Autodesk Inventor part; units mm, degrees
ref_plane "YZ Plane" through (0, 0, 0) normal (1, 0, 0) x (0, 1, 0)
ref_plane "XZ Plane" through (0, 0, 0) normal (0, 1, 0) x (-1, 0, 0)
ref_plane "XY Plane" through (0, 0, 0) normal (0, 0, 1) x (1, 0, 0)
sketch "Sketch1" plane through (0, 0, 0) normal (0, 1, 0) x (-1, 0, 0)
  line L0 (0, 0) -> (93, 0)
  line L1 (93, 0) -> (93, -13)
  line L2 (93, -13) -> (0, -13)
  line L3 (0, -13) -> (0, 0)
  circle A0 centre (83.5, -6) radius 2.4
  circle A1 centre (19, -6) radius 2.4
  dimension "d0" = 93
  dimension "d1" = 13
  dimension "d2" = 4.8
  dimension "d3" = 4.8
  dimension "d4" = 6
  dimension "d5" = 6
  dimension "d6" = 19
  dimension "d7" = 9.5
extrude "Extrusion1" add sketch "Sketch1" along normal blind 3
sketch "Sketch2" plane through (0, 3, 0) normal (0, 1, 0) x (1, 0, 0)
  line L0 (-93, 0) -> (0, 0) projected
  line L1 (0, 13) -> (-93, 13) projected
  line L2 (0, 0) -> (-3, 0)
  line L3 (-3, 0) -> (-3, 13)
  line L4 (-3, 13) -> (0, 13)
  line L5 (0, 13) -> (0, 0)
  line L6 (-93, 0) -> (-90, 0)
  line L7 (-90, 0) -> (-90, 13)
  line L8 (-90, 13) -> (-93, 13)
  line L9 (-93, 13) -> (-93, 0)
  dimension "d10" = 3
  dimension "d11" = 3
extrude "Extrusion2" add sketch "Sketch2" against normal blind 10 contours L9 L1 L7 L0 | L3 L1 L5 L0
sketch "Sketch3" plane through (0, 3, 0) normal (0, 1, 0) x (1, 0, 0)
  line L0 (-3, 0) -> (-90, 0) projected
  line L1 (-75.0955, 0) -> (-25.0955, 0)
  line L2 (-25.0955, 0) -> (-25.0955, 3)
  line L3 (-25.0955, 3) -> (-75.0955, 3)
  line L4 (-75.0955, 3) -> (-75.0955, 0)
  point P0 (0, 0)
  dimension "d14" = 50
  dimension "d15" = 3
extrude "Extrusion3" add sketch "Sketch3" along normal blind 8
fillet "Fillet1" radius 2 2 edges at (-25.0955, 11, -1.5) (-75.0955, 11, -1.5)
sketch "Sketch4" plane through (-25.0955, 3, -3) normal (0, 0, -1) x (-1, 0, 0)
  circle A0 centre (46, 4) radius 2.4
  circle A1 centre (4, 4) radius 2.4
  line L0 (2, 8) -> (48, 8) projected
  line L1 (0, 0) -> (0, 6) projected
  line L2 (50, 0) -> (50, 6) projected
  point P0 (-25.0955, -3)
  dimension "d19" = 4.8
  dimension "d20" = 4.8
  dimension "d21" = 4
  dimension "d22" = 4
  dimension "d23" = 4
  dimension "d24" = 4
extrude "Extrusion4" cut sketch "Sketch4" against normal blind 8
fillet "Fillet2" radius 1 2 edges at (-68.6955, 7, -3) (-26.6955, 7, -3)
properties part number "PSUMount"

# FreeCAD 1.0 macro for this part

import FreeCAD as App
import Part
import Sketcher


def edges_at(feature, points):
    """Names of the edges that pass closest to the given points."""
    edges = feature.Shape.Edges
    near = lambda p: min(range(len(edges)), key=lambda i: edges[i].distToShape(Part.Vertex(*p))[0])
    return sorted({f"Edge{near(p) + 1}" for p in points})

doc = App.newDocument("Part")
body = doc.addObject("PartDesign::Body", "Body")

sketch1 = doc.addObject("Sketcher::SketchObject", "Sketch")
body.addObject(sketch1)
sketch1.AttachmentSupport = (doc.XZ_Plane, [""])
sketch1.MapMode = "FlatFace"
sketch1.addGeometry(Part.LineSegment(App.Vector(-93, 0, 0), App.Vector(0, 0, 0)), False)
sketch1.addGeometry(Part.LineSegment(App.Vector(0, 0, 0), App.Vector(0, -13, 0)), False)
sketch1.addGeometry(Part.LineSegment(App.Vector(0, -13, 0), App.Vector(-93, -13, 0)), False)
sketch1.addGeometry(Part.LineSegment(App.Vector(-93, -13, 0), App.Vector(-93, 0, 0)), False)
sketch1.addGeometry(Part.Circle(App.Vector(-19, -6, 0), App.Vector(0, 0, 1), 2.4), False)
sketch1.addGeometry(Part.Circle(App.Vector(-83.5, -6, 0), App.Vector(0, 0, 1), 2.4), False)
sketch1.addConstraint(Sketcher.Constraint("Coincident", 0, 2, 1, 1))
sketch1.addConstraint(Sketcher.Constraint("Coincident", 1, 2, 2, 1))
sketch1.addConstraint(Sketcher.Constraint("Coincident", 2, 2, 3, 1))
sketch1.addConstraint(Sketcher.Constraint("Coincident", 3, 2, 0, 1))
sketch1.addConstraint(Sketcher.Constraint("Horizontal", 0))
sketch1.addConstraint(Sketcher.Constraint("Vertical", 1))
sketch1.addConstraint(Sketcher.Constraint("Horizontal", 2))
sketch1.addConstraint(Sketcher.Constraint("Vertical", 3))
sketch1.addConstraint(Sketcher.Constraint("Coincident", 0, 2, -1, 1))
sketch1.addConstraint(Sketcher.Constraint("Equal", 4, 5))
sketch1.addConstraint(Sketcher.Constraint("Horizontal", 4, 3, 5, 3))
sketch1.addConstraint(Sketcher.Constraint("Diameter", 4, 4.8))
sketch1.addConstraint(Sketcher.Constraint("DistanceX", 0, 1, 0, 2, 93.0))
sketch1.addConstraint(Sketcher.Constraint("DistanceY", 1, 2, 1, 1, 13.0))
sketch1.addConstraint(Sketcher.Constraint("DistanceX", 4, 3, -1, 1, 19.0))
sketch1.addConstraint(Sketcher.Constraint("DistanceY", 4, 3, -1, 1, 6.0))
sketch1.addConstraint(Sketcher.Constraint("DistanceX", 2, 2, 5, 3, 9.5))
pad1 = doc.addObject("PartDesign::Pad", "Pad")
body.addObject(pad1)
pad1.Profile = sketch1
pad1.Length = 3
pad1.Reversed = True

sketch2 = doc.addObject("Sketcher::SketchObject", "Sketch001")
body.addObject(sketch2)
sketch2.AttachmentSupport = (doc.XZ_Plane, [""])
sketch2.MapMode = "FlatFace"
sketch2.AttachmentOffset = App.Placement(App.Vector(0, 0, -3), App.Rotation())
sketch2.addGeometry(Part.LineSegment(App.Vector(-93, -13, 0), App.Vector(-93, 0, 0)), False)
sketch2.addGeometry(Part.LineSegment(App.Vector(-93, 0, 0), App.Vector(-90, 0, 0)), False)
sketch2.addGeometry(Part.LineSegment(App.Vector(-90, 0, 0), App.Vector(-90, -13, 0)), False)
sketch2.addGeometry(Part.LineSegment(App.Vector(-90, -13, 0), App.Vector(-93, -13, 0)), False)
sketch2.addGeometry(Part.LineSegment(App.Vector(-3, -13, 0), App.Vector(-3, 0, 0)), False)
sketch2.addGeometry(Part.LineSegment(App.Vector(-3, 0, 0), App.Vector(0, 0, 0)), False)
sketch2.addGeometry(Part.LineSegment(App.Vector(0, 0, 0), App.Vector(0, -13, 0)), False)
sketch2.addGeometry(Part.LineSegment(App.Vector(0, -13, 0), App.Vector(-3, -13, 0)), False)
sketch2.addConstraint(Sketcher.Constraint("Coincident", 0, 2, 1, 1))
sketch2.addConstraint(Sketcher.Constraint("Coincident", 1, 2, 2, 1))
sketch2.addConstraint(Sketcher.Constraint("Coincident", 2, 2, 3, 1))
sketch2.addConstraint(Sketcher.Constraint("Coincident", 3, 2, 0, 1))
sketch2.addConstraint(Sketcher.Constraint("Coincident", 4, 2, 5, 1))
sketch2.addConstraint(Sketcher.Constraint("Coincident", 5, 2, 6, 1))
sketch2.addConstraint(Sketcher.Constraint("Coincident", 6, 2, 7, 1))
sketch2.addConstraint(Sketcher.Constraint("Coincident", 7, 2, 4, 1))
sketch2.addConstraint(Sketcher.Constraint("Vertical", 0))
sketch2.addConstraint(Sketcher.Constraint("Horizontal", 1))
sketch2.addConstraint(Sketcher.Constraint("Vertical", 2))
sketch2.addConstraint(Sketcher.Constraint("Horizontal", 3))
sketch2.addConstraint(Sketcher.Constraint("Vertical", 4))
sketch2.addConstraint(Sketcher.Constraint("Horizontal", 5))
sketch2.addConstraint(Sketcher.Constraint("Vertical", 6))
sketch2.addConstraint(Sketcher.Constraint("Horizontal", 7))
sketch2.addConstraint(Sketcher.Constraint("Coincident", 5, 2, -1, 1))
sketch2.addConstraint(Sketcher.Constraint("PointOnObject", 0, 2, -1))
sketch2.addConstraint(Sketcher.Constraint("Horizontal", 3, 2, 6, 2))
sketch2.addConstraint(Sketcher.Constraint("Equal", 3, 5))
sketch2.addConstraint(Sketcher.Constraint("DistanceX", 1, 1, 1, 2, 3.0))
sketch2.addConstraint(Sketcher.Constraint("DistanceY", 0, 1, 0, 2, 13.0))
sketch2.addConstraint(Sketcher.Constraint("DistanceX", 0, 2, -1, 1, 93.0))
pad2 = doc.addObject("PartDesign::Pad", "Pad001")
body.addObject(pad2)
pad2.Profile = sketch2
pad2.Length = 10

sketch3 = doc.addObject("Sketcher::SketchObject", "Sketch002")
body.addObject(sketch3)
sketch3.AttachmentSupport = (doc.XZ_Plane, [""])
sketch3.MapMode = "FlatFace"
sketch3.AttachmentOffset = App.Placement(App.Vector(0, 0, -3), App.Rotation())
sketch3.addGeometry(Part.LineSegment(App.Vector(-75.1, 0, 0), App.Vector(-25.1, 0, 0)), False)
sketch3.addGeometry(Part.LineSegment(App.Vector(-25.1, 0, 0), App.Vector(-25.1, -3, 0)), False)
sketch3.addGeometry(Part.LineSegment(App.Vector(-25.1, -3, 0), App.Vector(-75.1, -3, 0)), False)
sketch3.addGeometry(Part.LineSegment(App.Vector(-75.1, -3, 0), App.Vector(-75.1, 0, 0)), False)
sketch3.addConstraint(Sketcher.Constraint("Coincident", 0, 2, 1, 1))
sketch3.addConstraint(Sketcher.Constraint("Coincident", 1, 2, 2, 1))
sketch3.addConstraint(Sketcher.Constraint("Coincident", 2, 2, 3, 1))
sketch3.addConstraint(Sketcher.Constraint("Coincident", 3, 2, 0, 1))
sketch3.addConstraint(Sketcher.Constraint("Horizontal", 0))
sketch3.addConstraint(Sketcher.Constraint("Vertical", 1))
sketch3.addConstraint(Sketcher.Constraint("Horizontal", 2))
sketch3.addConstraint(Sketcher.Constraint("Vertical", 3))
sketch3.addConstraint(Sketcher.Constraint("PointOnObject", 0, 2, -1))
sketch3.addConstraint(Sketcher.Constraint("DistanceX", 0, 1, 0, 2, 50.0))
sketch3.addConstraint(Sketcher.Constraint("DistanceY", 1, 2, 1, 1, 3.0))
sketch3.addConstraint(Sketcher.Constraint("DistanceX", 0, 2, -1, 1, 25.0955))
pad3 = doc.addObject("PartDesign::Pad", "Pad002")
body.addObject(pad3)
pad3.Profile = sketch3
pad3.Length = 8
pad3.Reversed = True
doc.recompute()

fillet = doc.addObject("PartDesign::Fillet", "Fillet")
body.addObject(fillet)
fillet.Base = (pad3, edges_at(pad3, [(-25.096, 11, -1.5), (-75.096, 11, -1.5)]))
fillet.Radius = 2

sketch4 = doc.addObject("Sketcher::SketchObject", "Sketch003")
body.addObject(sketch4)
sketch4.AttachmentSupport = (doc.XY_Plane, [""])
sketch4.MapMode = "FlatFace"
sketch4.AttachmentOffset = App.Placement(App.Vector(0, 0, -3), App.Rotation())
sketch4.addGeometry(Part.Circle(App.Vector(-71.1, 7, 0), App.Vector(0, 0, 1), 2.4), False)
sketch4.addGeometry(Part.Circle(App.Vector(-29.1, 7, 0), App.Vector(0, 0, 1), 2.4), False)
sketch4.addConstraint(Sketcher.Constraint("Equal", 0, 1))
sketch4.addConstraint(Sketcher.Constraint("Horizontal", 0, 3, 1, 3))
sketch4.addConstraint(Sketcher.Constraint("Diameter", 0, 4.8))
sketch4.addConstraint(Sketcher.Constraint("DistanceY", -1, 1, 0, 3, 7.0))
sketch4.addConstraint(Sketcher.Constraint("DistanceX", 0, 3, 1, 3, 42.0))
sketch4.addConstraint(Sketcher.Constraint("DistanceX", 0, 3, -1, 1, 71.0955))
pocket1 = doc.addObject("PartDesign::Pocket", "Pocket")
body.addObject(pocket1)
pocket1.Profile = sketch4
pocket1.Length = 8
pocket1.Reversed = True
doc.recompute()

fillet2 = doc.addObject("PartDesign::Fillet", "Fillet001")
body.addObject(fillet2)
fillet2.Base = (pocket1, edges_at(pocket1, [(-68.695, 7, -3), (-26.695, 7, -3)]))
fillet2.Radius = 1

doc.recompute()
